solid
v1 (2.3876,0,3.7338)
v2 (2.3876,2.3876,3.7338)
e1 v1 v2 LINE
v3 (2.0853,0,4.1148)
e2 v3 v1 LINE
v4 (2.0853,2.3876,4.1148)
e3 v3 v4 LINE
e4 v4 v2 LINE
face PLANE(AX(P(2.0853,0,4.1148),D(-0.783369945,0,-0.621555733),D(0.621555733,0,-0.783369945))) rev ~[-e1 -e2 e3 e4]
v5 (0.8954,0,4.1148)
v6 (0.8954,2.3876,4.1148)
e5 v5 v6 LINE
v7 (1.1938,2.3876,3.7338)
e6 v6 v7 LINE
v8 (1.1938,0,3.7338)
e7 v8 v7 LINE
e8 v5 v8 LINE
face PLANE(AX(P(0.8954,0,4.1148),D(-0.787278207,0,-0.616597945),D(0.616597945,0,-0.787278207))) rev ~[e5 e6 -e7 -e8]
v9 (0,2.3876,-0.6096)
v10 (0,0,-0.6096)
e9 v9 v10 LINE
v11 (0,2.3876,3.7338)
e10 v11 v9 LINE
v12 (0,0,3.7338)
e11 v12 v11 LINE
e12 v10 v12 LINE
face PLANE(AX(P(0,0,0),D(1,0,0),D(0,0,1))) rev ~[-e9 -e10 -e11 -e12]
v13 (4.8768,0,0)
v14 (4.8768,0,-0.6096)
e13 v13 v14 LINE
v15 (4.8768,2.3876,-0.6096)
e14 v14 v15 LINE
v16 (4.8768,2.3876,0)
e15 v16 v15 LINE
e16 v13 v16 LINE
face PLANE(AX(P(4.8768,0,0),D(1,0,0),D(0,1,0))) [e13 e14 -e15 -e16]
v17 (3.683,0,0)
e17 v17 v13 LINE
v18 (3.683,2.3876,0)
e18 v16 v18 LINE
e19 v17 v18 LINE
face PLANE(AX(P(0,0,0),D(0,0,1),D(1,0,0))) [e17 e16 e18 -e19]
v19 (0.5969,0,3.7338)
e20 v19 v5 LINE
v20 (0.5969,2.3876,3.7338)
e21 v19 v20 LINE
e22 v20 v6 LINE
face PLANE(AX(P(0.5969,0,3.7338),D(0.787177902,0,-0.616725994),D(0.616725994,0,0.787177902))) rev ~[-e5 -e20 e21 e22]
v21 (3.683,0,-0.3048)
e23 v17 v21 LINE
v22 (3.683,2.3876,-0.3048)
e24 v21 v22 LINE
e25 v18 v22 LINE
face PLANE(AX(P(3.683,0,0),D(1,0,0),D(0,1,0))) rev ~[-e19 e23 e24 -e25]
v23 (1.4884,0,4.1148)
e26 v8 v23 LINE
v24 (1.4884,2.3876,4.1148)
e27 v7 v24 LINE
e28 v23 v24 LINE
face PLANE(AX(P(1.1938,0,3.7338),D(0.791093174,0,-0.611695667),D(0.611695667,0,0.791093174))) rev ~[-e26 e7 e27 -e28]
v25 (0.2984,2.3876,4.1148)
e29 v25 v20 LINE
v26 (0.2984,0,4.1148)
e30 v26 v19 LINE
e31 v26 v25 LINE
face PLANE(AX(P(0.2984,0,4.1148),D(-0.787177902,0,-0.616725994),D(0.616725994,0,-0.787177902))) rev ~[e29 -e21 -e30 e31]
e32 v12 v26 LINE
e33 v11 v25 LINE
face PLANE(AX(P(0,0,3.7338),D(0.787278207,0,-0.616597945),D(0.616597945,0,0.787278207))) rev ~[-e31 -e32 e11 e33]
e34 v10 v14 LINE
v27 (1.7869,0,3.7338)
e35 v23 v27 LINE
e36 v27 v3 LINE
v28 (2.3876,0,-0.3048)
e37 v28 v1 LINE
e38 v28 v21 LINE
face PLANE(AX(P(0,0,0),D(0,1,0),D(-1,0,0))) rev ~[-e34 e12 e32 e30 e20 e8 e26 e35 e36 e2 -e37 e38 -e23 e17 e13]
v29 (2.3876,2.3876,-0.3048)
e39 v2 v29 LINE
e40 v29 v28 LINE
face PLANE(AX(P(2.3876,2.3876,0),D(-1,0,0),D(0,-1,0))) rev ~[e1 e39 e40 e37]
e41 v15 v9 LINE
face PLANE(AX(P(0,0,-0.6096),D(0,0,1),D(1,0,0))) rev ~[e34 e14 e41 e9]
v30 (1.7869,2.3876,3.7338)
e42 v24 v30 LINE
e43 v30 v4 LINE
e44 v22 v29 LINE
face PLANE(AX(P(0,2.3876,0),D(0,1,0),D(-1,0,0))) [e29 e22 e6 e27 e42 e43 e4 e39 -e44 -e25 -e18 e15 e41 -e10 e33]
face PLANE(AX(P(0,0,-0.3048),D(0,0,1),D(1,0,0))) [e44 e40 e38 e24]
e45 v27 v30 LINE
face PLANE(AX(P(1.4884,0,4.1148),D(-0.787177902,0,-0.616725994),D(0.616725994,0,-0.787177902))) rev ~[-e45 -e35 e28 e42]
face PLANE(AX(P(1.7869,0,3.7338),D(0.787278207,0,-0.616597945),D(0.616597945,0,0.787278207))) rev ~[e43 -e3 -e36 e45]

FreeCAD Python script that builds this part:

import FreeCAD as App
import Part
import Sketcher
from FreeCAD import Vector
Q = App.Units.Quantity


def add_polygon(sketch, points):
    """Adds a closed chain of lines whose ends are joined by coincident constraints."""
    first, n = sketch.GeometryCount, len(points)
    for a, b in zip(points, points[1:] + points[:1]):
        sketch.addGeometry(Part.LineSegment(App.Vector(*a, 0), App.Vector(*b, 0)), False)
    for i in range(n):
        sketch.addConstraint(Sketcher.Constraint("Coincident", first + i, 2, first + (i + 1) % n, 1))

doc = App.newDocument("Part")
body = doc.addObject("PartDesign::Body", "Body")

sketch1 = body.newObject("Sketcher::SketchObject", "Sketch")
sketch1.AttachmentSupport = (doc.getObject("XZ_Plane"), [""])
sketch1.MapMode = "FlatFace"
add_polygon(sketch1, [(0, 0), (0, 3.73), (0.3, 4.11), (0.6, 3.73), (0.9, 4.11), (1.19, 3.73), (1.49, 4.11), (1.79, 3.73), (2.09, 4.11), (2.39, 3.73), (2.39, 0)])
sketch1.addConstraint([
    Sketcher.Constraint("Vertical", 0),
    Sketcher.Constraint("Vertical", 9),
    Sketcher.Constraint("Horizontal", 10),
    Sketcher.Constraint("Coincident", 10, 2, -1, 1),
    Sketcher.Constraint("Parallel", 1, 3),
    Sketcher.Constraint("Parallel", 2, 4),
    Sketcher.Constraint("Parallel", 4, 6),
    Sketcher.Constraint("Parallel", 3, 7),
    Sketcher.Constraint("Horizontal", 0, 2, 2, 2),
    Sketcher.Constraint("Horizontal", 1, 2, 3, 2),
    Sketcher.Constraint("Horizontal", 2, 2, 4, 2),
    Sketcher.Constraint("Horizontal", 3, 2, 5, 2),
    Sketcher.Constraint("Horizontal", 4, 2, 6, 2),
    Sketcher.Constraint("Horizontal", 5, 2, 7, 2),
    Sketcher.Constraint("Horizontal", 6, 2, 8, 2),
    Sketcher.Constraint("Equal", 1, 2),
    Sketcher.Constraint("DistanceX", 10, 2, 10, 1, Q("0.094 in")),
    Sketcher.Constraint("DistanceY", 0, 1, 0, 2, Q("0.147 in")),
    Sketcher.Constraint("Angle", 8, Q("-51.5702 deg")),
    Sketcher.Constraint("DistanceY", -1, 1, 1, 2, Q("0.162 in")),
    Sketcher.Constraint("DistanceX", -1, 1, 4, 2, Q("0.047 in")),
])
pad1 = body.newObject("PartDesign::Pad", "Pad")
pad1.Profile = sketch1
pad1.Length = Q("0.094 in")
pad1.Reversed = True

sketch2 = body.newObject("Sketcher::SketchObject", "Sketch001")
sketch2.AttachmentSupport = (doc.getObject("XY_Plane"), [""])
sketch2.MapMode = "FlatFace"
add_polygon(sketch2, [(4.9, 2.4), (0, 2.4), (0, 0), (4.9, 0)])
sketch2.addConstraint([
    Sketcher.Constraint("Horizontal", 0),
    Sketcher.Constraint("Vertical", 1),
    Sketcher.Constraint("Horizontal", 2),
    Sketcher.Constraint("Vertical", 3),
    Sketcher.Constraint("Coincident", 1, 2, -1, 1),
    Sketcher.Constraint("DistanceX", 0, 2, 0, 1, Q("0.192 in")),
    Sketcher.Constraint("DistanceY", 1, 2, 1, 1, Q("0.094 in")),
])
pad2 = body.newObject("PartDesign::Pad", "Pad001")
pad2.Profile = sketch2
pad2.Length = Q("0.024 in")
pad2.Reversed = True

sketch3 = body.newObject("Sketcher::SketchObject", "Sketch002")
sketch3.AttachmentSupport = (doc.getObject("XY_Plane"), [""])
sketch3.MapMode = "FlatFace"
add_polygon(sketch3, [(3.7, 2.4), (2.4, 2.4), (2.4, 0), (3.7, 0)])
sketch3.addConstraint([
    Sketcher.Constraint("Horizontal", 0),
    Sketcher.Constraint("Vertical", 1),
    Sketcher.Constraint("Horizontal", 2),
    Sketcher.Constraint("Vertical", 3),
    Sketcher.Constraint("PointOnObject", 1, 2, -1),
    Sketcher.Constraint("DistanceX", 0, 2, 0, 1, Q("0.051 in")),
    Sketcher.Constraint("DistanceY", 1, 2, 1, 1, Q("0.094 in")),
    Sketcher.Constraint("DistanceX", -1, 1, 0, 2, Q("0.094 in")),
])
pocket1 = body.newObject("PartDesign::Pocket", "Pocket")
pocket1.Profile = sketch3
pocket1.Length = Q("0.012 in")

doc.recompute()
